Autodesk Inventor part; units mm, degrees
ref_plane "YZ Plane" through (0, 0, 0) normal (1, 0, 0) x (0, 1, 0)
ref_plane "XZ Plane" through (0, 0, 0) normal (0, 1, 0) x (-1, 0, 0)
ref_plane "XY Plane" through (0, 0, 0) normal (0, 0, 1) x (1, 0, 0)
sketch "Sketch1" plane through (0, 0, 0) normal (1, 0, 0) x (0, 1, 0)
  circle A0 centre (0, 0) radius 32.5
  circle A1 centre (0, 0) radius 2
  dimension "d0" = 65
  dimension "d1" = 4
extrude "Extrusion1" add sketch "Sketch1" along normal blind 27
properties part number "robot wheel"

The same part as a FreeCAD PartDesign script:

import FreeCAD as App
import Part
import Sketcher

doc = App.newDocument("Part")
body = doc.addObject("PartDesign::Body", "Body")

# Sketch on YZ plane
sketch1 = body.newObject("Sketcher::SketchObject", "Sketch")
sketch1.AttachmentSupport = (doc.getObject("YZ_Plane"), [""])
sketch1.MapMode = "FlatFace"
sketch1.addGeometry(Part.Circle(App.Vector(0, 0, 0), App.Vector(0, 0, 1), 32.5), False)
sketch1.addGeometry(Part.Circle(App.Vector(0, 0, 0), App.Vector(0, 0, 1), 2), False)
sketch1.addConstraint(Sketcher.Constraint("Coincident", 0, 3, -1, 1))
sketch1.addConstraint(Sketcher.Constraint("Coincident", 1, 3, -1, 1))
sketch1.addConstraint(Sketcher.Constraint("Diameter", 0, 65.0))
sketch1.addConstraint(Sketcher.Constraint("Diameter", 1, 4.0))
pad1 = body.newObject("PartDesign::Pad", "Pad")
pad1.Profile = sketch1
pad1.Length = 27

doc.recompute()
